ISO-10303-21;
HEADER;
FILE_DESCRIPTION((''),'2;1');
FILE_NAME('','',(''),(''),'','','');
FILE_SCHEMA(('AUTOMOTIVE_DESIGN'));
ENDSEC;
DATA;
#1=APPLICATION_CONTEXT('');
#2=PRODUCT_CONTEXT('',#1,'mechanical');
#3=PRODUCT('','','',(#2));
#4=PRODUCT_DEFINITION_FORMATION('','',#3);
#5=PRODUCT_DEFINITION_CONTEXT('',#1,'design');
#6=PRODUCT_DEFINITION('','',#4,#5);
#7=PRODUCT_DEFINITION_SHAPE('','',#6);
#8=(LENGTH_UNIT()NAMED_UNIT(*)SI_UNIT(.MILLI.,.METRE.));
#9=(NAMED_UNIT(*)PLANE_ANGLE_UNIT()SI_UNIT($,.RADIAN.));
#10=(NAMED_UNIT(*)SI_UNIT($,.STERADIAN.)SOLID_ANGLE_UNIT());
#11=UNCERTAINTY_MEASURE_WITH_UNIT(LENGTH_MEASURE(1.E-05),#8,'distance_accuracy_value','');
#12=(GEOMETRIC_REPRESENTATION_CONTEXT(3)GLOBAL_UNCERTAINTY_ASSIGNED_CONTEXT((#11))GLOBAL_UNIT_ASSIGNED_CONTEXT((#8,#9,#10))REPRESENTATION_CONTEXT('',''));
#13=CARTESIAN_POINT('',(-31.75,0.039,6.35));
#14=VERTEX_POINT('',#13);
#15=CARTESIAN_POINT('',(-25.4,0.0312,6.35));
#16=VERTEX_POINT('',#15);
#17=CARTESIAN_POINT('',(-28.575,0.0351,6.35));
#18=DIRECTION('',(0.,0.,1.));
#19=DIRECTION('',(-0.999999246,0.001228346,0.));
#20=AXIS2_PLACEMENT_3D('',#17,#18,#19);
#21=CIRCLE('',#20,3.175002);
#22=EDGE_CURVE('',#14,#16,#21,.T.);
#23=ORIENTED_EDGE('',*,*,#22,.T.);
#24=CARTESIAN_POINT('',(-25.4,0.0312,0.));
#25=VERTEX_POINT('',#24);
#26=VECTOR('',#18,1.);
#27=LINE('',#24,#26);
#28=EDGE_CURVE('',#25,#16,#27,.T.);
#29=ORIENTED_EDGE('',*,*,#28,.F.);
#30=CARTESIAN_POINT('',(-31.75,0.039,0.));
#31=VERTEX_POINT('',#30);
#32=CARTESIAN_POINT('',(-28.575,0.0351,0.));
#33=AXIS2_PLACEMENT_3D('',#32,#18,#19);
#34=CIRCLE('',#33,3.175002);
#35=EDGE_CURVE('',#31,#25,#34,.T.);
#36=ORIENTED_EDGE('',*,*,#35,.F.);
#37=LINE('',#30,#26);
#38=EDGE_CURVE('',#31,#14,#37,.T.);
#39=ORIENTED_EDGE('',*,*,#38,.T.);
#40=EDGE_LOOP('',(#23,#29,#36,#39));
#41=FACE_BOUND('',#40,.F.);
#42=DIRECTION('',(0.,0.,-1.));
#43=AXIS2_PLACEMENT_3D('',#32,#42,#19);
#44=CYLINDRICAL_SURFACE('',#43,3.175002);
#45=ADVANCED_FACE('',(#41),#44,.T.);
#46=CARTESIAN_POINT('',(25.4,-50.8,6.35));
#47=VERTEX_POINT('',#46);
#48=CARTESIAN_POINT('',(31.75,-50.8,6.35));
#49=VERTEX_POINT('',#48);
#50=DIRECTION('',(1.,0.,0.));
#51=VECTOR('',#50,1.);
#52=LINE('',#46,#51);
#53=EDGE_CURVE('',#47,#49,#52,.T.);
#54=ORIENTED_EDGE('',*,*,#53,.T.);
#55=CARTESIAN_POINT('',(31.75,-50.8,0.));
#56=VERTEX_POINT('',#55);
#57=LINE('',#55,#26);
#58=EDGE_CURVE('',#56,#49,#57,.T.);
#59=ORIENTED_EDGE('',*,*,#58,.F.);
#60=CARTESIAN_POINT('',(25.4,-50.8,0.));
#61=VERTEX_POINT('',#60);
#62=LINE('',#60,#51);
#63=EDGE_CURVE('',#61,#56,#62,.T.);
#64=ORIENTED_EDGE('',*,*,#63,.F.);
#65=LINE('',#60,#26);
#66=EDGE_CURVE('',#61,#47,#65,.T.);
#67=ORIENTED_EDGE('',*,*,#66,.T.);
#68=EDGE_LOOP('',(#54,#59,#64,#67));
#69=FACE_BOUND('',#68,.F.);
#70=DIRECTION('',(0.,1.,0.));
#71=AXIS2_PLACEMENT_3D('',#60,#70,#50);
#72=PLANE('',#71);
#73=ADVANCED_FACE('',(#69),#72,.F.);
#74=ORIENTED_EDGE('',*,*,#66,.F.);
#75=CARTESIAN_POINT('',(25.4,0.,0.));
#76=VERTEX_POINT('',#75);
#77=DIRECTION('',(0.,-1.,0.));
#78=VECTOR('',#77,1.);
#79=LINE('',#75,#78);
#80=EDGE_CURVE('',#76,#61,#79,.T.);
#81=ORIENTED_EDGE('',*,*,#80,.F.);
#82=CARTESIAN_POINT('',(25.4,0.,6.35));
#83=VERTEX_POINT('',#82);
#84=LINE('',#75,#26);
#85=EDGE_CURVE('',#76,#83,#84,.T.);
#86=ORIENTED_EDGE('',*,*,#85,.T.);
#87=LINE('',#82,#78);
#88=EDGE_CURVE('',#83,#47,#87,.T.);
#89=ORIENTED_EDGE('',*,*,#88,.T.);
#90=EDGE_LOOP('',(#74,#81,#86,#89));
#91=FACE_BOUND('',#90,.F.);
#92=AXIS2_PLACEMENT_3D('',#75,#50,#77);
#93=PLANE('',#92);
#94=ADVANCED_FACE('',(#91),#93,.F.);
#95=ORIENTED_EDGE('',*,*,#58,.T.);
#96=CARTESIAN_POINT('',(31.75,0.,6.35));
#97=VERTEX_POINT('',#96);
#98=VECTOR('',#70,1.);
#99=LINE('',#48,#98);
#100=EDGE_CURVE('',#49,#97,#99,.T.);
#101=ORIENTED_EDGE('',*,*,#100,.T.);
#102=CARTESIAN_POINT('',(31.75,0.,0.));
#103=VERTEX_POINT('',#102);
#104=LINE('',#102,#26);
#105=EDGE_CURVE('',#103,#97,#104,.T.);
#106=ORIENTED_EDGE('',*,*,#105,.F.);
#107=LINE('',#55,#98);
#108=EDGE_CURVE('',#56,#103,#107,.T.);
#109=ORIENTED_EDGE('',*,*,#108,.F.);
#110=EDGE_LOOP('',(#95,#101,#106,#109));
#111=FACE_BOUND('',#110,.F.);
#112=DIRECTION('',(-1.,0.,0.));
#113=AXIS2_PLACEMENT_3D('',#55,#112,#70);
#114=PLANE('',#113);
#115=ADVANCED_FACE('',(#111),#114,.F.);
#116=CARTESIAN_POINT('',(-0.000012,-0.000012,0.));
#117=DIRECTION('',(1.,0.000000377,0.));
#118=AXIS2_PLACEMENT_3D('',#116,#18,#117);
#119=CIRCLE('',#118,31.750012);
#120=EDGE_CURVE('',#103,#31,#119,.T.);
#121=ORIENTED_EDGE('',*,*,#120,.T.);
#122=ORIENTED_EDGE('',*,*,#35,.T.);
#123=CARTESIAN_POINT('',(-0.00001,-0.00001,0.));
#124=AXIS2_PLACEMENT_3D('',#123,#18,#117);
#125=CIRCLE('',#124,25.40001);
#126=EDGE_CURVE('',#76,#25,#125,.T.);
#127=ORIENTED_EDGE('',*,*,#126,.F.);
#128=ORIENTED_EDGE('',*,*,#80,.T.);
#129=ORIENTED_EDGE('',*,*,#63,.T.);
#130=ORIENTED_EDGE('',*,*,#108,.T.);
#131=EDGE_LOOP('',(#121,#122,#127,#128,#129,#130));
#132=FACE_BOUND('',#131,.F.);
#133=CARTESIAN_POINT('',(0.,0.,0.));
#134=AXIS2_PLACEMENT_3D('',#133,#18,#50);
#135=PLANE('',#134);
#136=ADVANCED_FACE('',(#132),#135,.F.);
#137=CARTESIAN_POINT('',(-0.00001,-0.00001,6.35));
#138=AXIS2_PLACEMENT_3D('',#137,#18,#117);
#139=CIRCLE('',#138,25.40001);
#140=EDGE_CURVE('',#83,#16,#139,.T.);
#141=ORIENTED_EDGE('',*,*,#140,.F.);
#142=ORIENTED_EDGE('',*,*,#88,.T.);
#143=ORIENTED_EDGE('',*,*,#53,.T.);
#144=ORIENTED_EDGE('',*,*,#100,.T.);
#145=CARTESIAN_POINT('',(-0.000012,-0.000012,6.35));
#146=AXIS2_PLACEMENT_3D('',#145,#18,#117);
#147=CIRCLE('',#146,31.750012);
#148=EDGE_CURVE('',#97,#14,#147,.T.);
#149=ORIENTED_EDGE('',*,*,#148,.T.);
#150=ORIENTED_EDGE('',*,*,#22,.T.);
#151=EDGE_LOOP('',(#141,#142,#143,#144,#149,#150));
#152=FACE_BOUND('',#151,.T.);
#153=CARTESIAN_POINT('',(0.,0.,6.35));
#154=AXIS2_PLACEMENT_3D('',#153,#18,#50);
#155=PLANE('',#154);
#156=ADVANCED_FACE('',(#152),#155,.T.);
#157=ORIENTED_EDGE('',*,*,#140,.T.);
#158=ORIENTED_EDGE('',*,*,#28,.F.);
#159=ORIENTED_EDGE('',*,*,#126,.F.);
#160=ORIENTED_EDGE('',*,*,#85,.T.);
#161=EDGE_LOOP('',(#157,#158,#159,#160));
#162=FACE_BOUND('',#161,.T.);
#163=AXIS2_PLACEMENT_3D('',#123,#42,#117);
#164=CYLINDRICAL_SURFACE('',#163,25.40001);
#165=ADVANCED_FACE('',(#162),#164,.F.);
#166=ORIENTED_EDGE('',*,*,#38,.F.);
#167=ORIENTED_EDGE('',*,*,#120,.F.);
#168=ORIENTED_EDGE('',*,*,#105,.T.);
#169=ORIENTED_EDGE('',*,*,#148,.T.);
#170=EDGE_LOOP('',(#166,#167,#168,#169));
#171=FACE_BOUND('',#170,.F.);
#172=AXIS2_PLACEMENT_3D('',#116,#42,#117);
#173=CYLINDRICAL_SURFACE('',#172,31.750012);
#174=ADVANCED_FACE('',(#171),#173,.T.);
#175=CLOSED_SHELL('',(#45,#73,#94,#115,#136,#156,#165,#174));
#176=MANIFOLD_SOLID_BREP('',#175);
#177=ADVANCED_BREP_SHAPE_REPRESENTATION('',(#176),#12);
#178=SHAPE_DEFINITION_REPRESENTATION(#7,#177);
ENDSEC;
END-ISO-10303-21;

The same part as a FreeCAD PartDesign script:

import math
import FreeCAD as App
import Part
import Sketcher
from FreeCAD import Vector
Q = App.Units.Quantity

doc = App.newDocument("Part")
params = doc.addObject("Spreadsheet::Sheet", "Params")
for row, (alias, value) in enumerate([
    ("sketch1_radius", "1 in"),
    ("sketch1_height", "2 in"),
    ("sketch1_radius2", "0.125 in"),
    ("pad1_length", "0.25 in"),
], start=1):
    params.set(f"A{row}", alias)
    params.set(f"B{row}", "=" + value)
    params.setAlias(f"B{row}", alias)

body = doc.addObject("PartDesign::Body", "Body")

# Sketch on XY plane
sketch1 = doc.addObject("Sketcher::SketchObject", "Sketch")
body.addObject(sketch1)
sketch1.AttachmentSupport = (doc.XY_Plane, [""])
sketch1.MapMode = "FlatFace"
sketch1.addGeometry(Part.ArcOfCircle(Part.Circle(Vector(0, 0, 0), Vector(0, 0, 1), 25.4), math.radians(0), math.radians(180)), False)
sketch1.addGeometry(Part.LineSegment(Vector(25.4, 0, 0), Vector(25.4, -50.8, 0)), False)
sketch1.addGeometry(Part.LineSegment(Vector(25.4, -50.8, 0), Vector(31.8, -50.8, 0)), False)
sketch1.addGeometry(Part.LineSegment(Vector(31.8, -50.8, 0), Vector(31.8, 0, 0)), False)
sketch1.addGeometry(Part.ArcOfCircle(Part.Circle(Vector(0, 0, 0), Vector(0, 0, 1), 31.8), math.radians(0), math.radians(180)), False)
sketch1.addGeometry(Part.ArcOfCircle(Part.Circle(Vector(-28.6, 0, 0), Vector(0, 0, 1), 3.2), math.radians(180), math.radians(360)), False)
sketch1.addConstraint(Sketcher.Constraint("Tangent", 0, 1, 1, 1))
sketch1.addConstraint(Sketcher.Constraint("Coincident", 1, 2, 2, 1))
sketch1.addConstraint(Sketcher.Constraint("Coincident", 2, 2, 3, 1))
sketch1.addConstraint(Sketcher.Constraint("Tangent", 3, 2, 4, 1))
sketch1.addConstraint(Sketcher.Constraint("Tangent", 4, 2, 5, 1))
sketch1.addConstraint(Sketcher.Constraint("Tangent", 5, 2, 0, 2))
sketch1.addConstraint(Sketcher.Constraint("Vertical", 1))
sketch1.addConstraint(Sketcher.Constraint("Horizontal", 2))
sketch1.addConstraint(Sketcher.Constraint("Vertical", 3))
sketch1.addConstraint(Sketcher.Constraint("Coincident", 0, 3, -1, 1))
sketch1.addConstraint(Sketcher.Constraint("Coincident", 4, 3, -1, 1))
sketch1.addConstraint(Sketcher.Constraint("Radius", 0, Q("1 in")))
sketch1.addConstraint(Sketcher.Constraint("DistanceY", 1, 2, 1, 1, Q("2 in")))
sketch1.addConstraint(Sketcher.Constraint("Radius", 5, Q("0.125 in")))
sketch1.addConstraint(Sketcher.Constraint("DistanceY", 5, 2, 4, 2, Q("0.0003 in")))
sketch1.setExpression("Constraints[11]", "Params.sketch1_radius")
sketch1.setExpression("Constraints[12]", "Params.sketch1_height")
sketch1.setExpression("Constraints[13]", "Params.sketch1_radius2")
pad1 = doc.addObject("PartDesign::Pad", "Pad")
body.addObject(pad1)
pad1.Profile = sketch1
pad1.setExpression("Length", "Params.pad1_length")

doc.recompute()
